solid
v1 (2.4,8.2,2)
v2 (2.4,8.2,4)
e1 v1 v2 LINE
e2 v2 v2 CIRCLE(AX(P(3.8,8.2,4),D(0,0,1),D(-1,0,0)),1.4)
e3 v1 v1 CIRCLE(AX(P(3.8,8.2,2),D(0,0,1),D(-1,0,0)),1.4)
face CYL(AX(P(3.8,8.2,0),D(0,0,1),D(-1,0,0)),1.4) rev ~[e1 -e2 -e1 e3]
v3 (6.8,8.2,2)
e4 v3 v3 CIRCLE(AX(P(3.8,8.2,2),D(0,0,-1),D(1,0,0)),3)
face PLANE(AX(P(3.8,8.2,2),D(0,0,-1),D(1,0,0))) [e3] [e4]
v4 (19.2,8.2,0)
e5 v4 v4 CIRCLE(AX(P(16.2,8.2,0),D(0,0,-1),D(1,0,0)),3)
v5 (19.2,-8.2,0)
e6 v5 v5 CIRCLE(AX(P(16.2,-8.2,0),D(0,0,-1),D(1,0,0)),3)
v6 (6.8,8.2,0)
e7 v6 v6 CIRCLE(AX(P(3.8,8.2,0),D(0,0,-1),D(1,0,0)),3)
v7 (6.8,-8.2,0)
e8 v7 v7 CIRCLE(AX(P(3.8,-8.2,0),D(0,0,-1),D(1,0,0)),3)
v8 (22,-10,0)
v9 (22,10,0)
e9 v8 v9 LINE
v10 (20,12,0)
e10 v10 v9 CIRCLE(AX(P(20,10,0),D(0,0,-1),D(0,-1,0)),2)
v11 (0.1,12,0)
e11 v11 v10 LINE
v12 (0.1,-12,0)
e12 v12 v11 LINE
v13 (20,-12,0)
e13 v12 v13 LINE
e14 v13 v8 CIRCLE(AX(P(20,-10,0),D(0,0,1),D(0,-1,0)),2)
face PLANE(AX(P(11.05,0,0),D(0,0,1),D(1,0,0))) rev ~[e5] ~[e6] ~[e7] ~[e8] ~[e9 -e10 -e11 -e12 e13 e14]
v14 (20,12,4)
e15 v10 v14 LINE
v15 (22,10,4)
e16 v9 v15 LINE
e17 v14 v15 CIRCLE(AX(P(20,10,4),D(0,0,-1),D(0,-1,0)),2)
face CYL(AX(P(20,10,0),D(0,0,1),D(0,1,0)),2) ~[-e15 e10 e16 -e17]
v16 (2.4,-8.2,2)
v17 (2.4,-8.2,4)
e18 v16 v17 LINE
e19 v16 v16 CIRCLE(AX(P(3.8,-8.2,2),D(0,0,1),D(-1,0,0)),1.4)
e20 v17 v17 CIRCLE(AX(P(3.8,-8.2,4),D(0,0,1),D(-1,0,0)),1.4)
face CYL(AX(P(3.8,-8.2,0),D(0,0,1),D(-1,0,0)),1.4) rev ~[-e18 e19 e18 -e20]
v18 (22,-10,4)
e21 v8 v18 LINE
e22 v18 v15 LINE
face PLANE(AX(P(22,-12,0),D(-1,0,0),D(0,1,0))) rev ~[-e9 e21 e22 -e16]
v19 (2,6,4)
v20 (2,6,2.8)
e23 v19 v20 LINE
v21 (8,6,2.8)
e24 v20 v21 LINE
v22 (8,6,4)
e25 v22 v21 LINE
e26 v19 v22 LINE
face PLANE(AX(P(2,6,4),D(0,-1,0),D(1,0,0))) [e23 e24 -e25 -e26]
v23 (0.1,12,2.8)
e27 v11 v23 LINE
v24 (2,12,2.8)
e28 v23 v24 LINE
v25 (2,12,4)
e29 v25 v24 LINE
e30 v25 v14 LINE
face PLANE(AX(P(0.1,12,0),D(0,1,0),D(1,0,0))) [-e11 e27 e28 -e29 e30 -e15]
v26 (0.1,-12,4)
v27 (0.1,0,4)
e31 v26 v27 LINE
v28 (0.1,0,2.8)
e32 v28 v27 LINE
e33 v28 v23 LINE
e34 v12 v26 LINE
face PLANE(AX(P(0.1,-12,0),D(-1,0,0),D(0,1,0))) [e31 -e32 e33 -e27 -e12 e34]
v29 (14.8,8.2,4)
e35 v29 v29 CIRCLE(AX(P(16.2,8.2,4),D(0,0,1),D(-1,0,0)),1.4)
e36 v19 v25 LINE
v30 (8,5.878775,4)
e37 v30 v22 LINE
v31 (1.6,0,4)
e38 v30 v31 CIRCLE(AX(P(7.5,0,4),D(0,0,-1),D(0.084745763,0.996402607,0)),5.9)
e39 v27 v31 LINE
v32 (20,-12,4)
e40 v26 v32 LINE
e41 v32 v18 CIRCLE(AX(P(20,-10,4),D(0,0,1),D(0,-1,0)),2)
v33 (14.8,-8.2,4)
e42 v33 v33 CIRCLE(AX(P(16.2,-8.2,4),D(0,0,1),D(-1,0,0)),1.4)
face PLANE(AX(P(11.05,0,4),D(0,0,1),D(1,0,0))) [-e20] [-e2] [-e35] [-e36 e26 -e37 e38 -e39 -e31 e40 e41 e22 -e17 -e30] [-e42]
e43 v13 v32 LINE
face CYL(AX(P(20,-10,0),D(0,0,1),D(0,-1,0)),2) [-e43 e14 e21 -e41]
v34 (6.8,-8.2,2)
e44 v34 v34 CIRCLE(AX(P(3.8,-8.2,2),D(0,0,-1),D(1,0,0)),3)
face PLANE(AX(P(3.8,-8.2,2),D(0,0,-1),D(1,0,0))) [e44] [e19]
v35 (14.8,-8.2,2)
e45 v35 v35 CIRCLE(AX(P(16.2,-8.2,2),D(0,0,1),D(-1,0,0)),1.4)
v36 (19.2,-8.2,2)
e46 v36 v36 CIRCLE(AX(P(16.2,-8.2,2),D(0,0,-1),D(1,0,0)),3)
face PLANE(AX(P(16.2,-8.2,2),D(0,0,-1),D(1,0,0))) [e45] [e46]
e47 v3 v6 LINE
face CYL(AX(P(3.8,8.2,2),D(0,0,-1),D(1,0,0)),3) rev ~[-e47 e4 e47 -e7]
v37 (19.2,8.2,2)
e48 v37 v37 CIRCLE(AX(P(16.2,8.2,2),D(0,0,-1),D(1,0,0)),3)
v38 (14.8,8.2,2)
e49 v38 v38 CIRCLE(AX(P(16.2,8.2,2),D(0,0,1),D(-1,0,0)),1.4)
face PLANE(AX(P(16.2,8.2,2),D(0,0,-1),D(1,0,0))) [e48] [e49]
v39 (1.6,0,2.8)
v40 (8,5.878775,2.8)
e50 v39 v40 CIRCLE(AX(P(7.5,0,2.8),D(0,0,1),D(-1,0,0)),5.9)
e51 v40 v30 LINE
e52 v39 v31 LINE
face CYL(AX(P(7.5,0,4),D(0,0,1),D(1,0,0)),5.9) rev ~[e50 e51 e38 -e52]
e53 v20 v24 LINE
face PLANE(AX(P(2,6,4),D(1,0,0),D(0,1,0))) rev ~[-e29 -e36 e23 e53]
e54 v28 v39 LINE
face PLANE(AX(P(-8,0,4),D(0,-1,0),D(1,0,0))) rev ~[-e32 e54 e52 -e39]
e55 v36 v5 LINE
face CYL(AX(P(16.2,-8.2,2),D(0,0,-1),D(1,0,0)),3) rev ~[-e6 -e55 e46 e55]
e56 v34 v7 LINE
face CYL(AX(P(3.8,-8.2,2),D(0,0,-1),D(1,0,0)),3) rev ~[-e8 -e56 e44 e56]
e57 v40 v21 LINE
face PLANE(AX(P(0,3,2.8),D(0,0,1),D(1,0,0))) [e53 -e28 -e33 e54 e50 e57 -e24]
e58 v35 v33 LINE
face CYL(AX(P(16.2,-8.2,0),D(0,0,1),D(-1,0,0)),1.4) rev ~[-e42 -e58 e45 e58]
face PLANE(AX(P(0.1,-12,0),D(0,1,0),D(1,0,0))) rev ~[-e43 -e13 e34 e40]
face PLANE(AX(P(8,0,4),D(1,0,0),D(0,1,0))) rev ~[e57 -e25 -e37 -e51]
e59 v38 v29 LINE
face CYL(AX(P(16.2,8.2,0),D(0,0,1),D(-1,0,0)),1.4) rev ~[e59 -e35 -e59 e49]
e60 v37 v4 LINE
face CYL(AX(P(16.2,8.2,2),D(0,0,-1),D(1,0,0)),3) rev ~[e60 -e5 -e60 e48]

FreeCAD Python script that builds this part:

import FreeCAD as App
import Part
import Sketcher
Q = App.Units.Quantity


def edges_at(feature, points):
    """Names of the edges that pass closest to the given points."""
    edges = feature.Shape.Edges
    near = lambda p: min(range(len(edges)), key=lambda i: edges[i].distToShape(Part.Vertex(*p))[0])
    return sorted({f"Edge{near(p) + 1}" for p in points})

doc = App.newDocument("Part")
body = doc.addObject("PartDesign::Body", "Body")

# Sketch on XY plane
sketch1 = body.newObject("Sketcher::SketchObject", "Sketch")
sketch1.AttachmentSupport = (doc.getObject("XY_Plane"), [""])
sketch1.MapMode = "FlatFace"
sketch1.addGeometry([
    Part.LineSegment(App.Vector(0.1, 12, 0), App.Vector(0.1, -12, 0)),
    Part.LineSegment(App.Vector(0.1, -12, 0), App.Vector(22, -12, 0)),
    Part.LineSegment(App.Vector(22, -12, 0), App.Vector(22, 12, 0)),
    Part.LineSegment(App.Vector(22, 12, 0), App.Vector(0.1, 12, 0)),
], False)
sketch1.addConstraint([
    Sketcher.Constraint("Coincident", 0, 2, 1, 1),
    Sketcher.Constraint("Coincident", 1, 2, 2, 1),
    Sketcher.Constraint("Coincident", 2, 2, 3, 1),
    Sketcher.Constraint("Coincident", 3, 2, 0, 1),
    Sketcher.Constraint("Vertical", 0),
    Sketcher.Constraint("Horizontal", 1),
    Sketcher.Constraint("Vertical", 2),
    Sketcher.Constraint("Horizontal", 3),
    Sketcher.Constraint("DistanceY", 0, 2, 0, 1, Q("24 mm")),
    Sketcher.Constraint("DistanceX", 1, 1, 1, 2, Q("21.9 mm")),
    Sketcher.Constraint("DistanceY", 0, 2, -1, 1, Q("12 mm")),
    Sketcher.Constraint("DistanceX", -1, 1, 1, 2, Q("22 mm")),
])
pad1 = body.newObject("PartDesign::Pad", "Pad")
pad1.Profile = sketch1
pad1.Length = 4

# Sketch on XY plane
sketch2 = body.newObject("Sketcher::SketchObject", "Sketch001")
sketch2.AttachmentSupport = (doc.getObject("XY_Plane"), [""])
sketch2.MapMode = "FlatFace"
sketch2.AttachmentOffset = App.Placement(App.Vector(0, 0, 4), App.Rotation())
sketch2.addGeometry(Part.Circle(App.Vector(7.5, 0, 0), App.Vector(0, 0, 1), 5.9), False)
sketch2.addConstraint([
    Sketcher.Constraint("PointOnObject", 0, 3, -1),
    Sketcher.Constraint("Diameter", 0, Q("11.8 mm")),
    Sketcher.Constraint("DistanceX", -1, 1, 0, 3, Q("7.5 mm")),
])
pocket1 = body.newObject("PartDesign::Pocket", "Pocket")
pocket1.Profile = sketch2
pocket1.Length = 1.2
doc.recompute()

mirrored = body.newObject("PartDesign::Mirrored", "Mirrored")
mirrored.Originals = [pocket1]
mirrored.MirrorPlane = (doc.getObject("YZ_Plane"), [""])
body.Tip = mirrored

# Sketch on XY plane
sketch3 = body.newObject("Sketcher::SketchObject", "Sketch002")
sketch3.AttachmentSupport = (doc.getObject("XY_Plane"), [""])
sketch3.MapMode = "FlatFace"
sketch3.AttachmentOffset = App.Placement(App.Vector(0, 0, 4), App.Rotation())
sketch3.addGeometry([
    Part.LineSegment(App.Vector(-8, 6, 0), App.Vector(-8, 0, 0)),  # 0
    Part.LineSegment(App.Vector(-8, 0, 0), App.Vector(8, 0, 0)),  # 1
    Part.LineSegment(App.Vector(8, 0, 0), App.Vector(8, 6, 0)),  # 2
    Part.LineSegment(App.Vector(8, 6, 0), App.Vector(2, 6, 0)),  # 3
    Part.LineSegment(App.Vector(2, 6, 0), App.Vector(2, 12, 0)),  # 4
    Part.LineSegment(App.Vector(2, 12, 0), App.Vector(-2, 12, 0)),  # 5
    Part.LineSegment(App.Vector(-2, 12, 0), App.Vector(-2, 6, 0)),  # 6
    Part.LineSegment(App.Vector(-2, 6, 0), App.Vector(-8, 6, 0)),  # 7
], False)
sketch3.addConstraint([
    Sketcher.Constraint("Coincident", 0, 2, 1, 1),
    Sketcher.Constraint("Coincident", 1, 2, 2, 1),
    Sketcher.Constraint("Coincident", 2, 2, 3, 1),
    Sketcher.Constraint("Coincident", 3, 2, 4, 1),
    Sketcher.Constraint("Coincident", 4, 2, 5, 1),
    Sketcher.Constraint("Coincident", 5, 2, 6, 1),
    Sketcher.Constraint("Coincident", 6, 2, 7, 1),
    Sketcher.Constraint("Coincident", 7, 2, 0, 1),
    Sketcher.Constraint("Vertical", 0),
    Sketcher.Constraint("Horizontal", 1),
    Sketcher.Constraint("Vertical", 2),
    Sketcher.Constraint("Horizontal", 3),
    Sketcher.Constraint("Vertical", 4),
    Sketcher.Constraint("Horizontal", 5),
    Sketcher.Constraint("Vertical", 6),
    Sketcher.Constraint("Horizontal", 7),
    Sketcher.Constraint("Symmetric", 0, 2, 1, 2, -1, 1),
    Sketcher.Constraint("Symmetric", 3, 2, 6, 2, -2),
    Sketcher.Constraint("Equal", 7, 0),
    Sketcher.Constraint("Equal", 2, 4),
    Sketcher.Constraint("DistanceX", 1, 1, 1, 2, Q("16 mm")),
    Sketcher.Constraint("DistanceX", 3, 2, 3, 1, Q("6 mm")),
])
pocket2 = body.newObject("PartDesign::Pocket", "Pocket001")
pocket2.Profile = sketch3
pocket2.Length = 1.2

# Sketch on XY plane
sketch4 = body.newObject("Sketcher::SketchObject", "Sketch003")
sketch4.AttachmentSupport = (doc.getObject("XY_Plane"), [""])
sketch4.MapMode = "FlatFace"
sketch4.addGeometry([
    Part.Circle(App.Vector(16.2, -8.2, 0), App.Vector(0, 0, 1), 1.4),
    Part.Circle(App.Vector(16.2, 8.2, 0), App.Vector(0, 0, 1), 1.4),
    Part.Circle(App.Vector(3.8, -8.2, 0), App.Vector(0, 0, 1), 1.4),
    Part.Circle(App.Vector(3.8, 8.2, 0), App.Vector(0, 0, 1), 1.4),
], False)
sketch4.addConstraint([
    Sketcher.Constraint("Equal", 0, 1),
    Sketcher.Constraint("Equal", 1, 2),
    Sketcher.Constraint("Equal", 2, 3),
    Sketcher.Constraint("Symmetric", 0, 3, 1, 3, -1),
    Sketcher.Constraint("Symmetric", 2, 3, 3, 3, -1),
    Sketcher.Constraint("Horizontal", 0, 3, 2, 3),
    Sketcher.Constraint("Diameter", 0, Q("2.8 mm")),
    Sketcher.Constraint("DistanceX", -1, 1, 0, 3, Q("16.2 mm")),
    Sketcher.Constraint("DistanceY", 0, 3, -1, 1, Q("8.2 mm")),
    Sketcher.Constraint("DistanceX", -1, 1, 2, 3, Q("3.8 mm")),
])
doc.recompute()
hole = body.newObject("PartDesign::Hole", "Hole")
hole.Profile = sketch4
hole.ThreadType = "None"
hole.Diameter = 2.8
hole.DepthType = "Dimension"
hole.Depth = 25
hole.DrillPoint = "Flat"
hole.HoleCutType = "Counterbore"
hole.HoleCutDiameter = 6
hole.HoleCutDepth = 2
hole.Reversed = True
doc.recompute()

mirrored2 = body.newObject("PartDesign::Mirrored", "Mirrored001")
mirrored2.Originals = [hole]
mirrored2.MirrorPlane = (doc.getObject("YZ_Plane"), [""])
body.Tip = mirrored2
doc.recompute()

fillet = body.newObject("PartDesign::Fillet", "Fillet")
fillet.Base = (mirrored2, edges_at(mirrored2, [(22, 12, 2), (22, -12, 2)]))
fillet.Radius = 2

doc.recompute()
